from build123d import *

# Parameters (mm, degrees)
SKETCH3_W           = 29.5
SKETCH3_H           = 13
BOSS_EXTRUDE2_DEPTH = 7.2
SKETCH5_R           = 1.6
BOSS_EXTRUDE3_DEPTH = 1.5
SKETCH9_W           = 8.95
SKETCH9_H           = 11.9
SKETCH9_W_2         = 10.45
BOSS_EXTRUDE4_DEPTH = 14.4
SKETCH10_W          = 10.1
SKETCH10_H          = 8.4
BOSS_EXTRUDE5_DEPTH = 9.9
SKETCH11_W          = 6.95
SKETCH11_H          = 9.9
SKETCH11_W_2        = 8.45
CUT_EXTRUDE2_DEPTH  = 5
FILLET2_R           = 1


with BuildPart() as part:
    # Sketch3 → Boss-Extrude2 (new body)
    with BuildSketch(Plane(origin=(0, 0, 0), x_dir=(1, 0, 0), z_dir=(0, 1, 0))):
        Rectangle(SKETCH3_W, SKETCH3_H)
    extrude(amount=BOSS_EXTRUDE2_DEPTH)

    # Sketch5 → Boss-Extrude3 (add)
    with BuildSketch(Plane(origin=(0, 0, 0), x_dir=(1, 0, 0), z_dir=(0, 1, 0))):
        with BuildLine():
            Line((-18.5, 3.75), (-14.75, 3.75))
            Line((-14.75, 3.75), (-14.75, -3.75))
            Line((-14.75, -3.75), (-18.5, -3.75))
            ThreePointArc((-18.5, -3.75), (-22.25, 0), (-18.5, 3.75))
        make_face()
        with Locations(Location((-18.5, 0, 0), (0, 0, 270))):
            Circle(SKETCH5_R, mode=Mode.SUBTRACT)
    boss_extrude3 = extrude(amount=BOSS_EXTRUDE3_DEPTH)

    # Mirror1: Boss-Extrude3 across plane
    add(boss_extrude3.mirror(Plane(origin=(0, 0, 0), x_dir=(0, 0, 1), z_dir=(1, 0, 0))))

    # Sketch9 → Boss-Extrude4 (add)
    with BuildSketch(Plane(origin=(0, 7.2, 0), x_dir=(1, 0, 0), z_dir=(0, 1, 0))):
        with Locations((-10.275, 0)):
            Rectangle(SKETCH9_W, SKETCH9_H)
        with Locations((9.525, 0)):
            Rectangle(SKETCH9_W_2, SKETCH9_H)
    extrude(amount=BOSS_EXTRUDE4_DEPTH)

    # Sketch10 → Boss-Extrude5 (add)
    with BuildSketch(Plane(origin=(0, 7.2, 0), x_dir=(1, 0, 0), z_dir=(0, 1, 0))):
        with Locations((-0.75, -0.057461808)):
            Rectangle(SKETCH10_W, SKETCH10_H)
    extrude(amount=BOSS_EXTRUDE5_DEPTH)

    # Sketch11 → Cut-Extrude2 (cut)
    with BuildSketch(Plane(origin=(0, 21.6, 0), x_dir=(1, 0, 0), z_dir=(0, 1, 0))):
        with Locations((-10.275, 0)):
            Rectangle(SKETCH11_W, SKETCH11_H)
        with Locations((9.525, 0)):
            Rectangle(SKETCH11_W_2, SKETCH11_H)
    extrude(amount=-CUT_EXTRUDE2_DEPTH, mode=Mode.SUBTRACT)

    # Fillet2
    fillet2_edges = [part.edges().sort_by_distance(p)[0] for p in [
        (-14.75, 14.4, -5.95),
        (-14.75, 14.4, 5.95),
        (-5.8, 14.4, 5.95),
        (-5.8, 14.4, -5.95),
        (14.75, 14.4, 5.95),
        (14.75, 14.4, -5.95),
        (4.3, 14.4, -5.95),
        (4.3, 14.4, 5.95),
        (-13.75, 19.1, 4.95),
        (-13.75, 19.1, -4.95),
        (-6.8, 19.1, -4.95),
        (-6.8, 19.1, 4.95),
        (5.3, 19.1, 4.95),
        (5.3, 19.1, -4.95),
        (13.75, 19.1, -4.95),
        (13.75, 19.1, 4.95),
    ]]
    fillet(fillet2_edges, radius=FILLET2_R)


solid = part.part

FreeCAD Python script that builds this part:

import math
import FreeCAD as App
import Part
import Sketcher
from FreeCAD import Vector
Q = App.Units.Quantity


def edges_at(feature, points):
    """Names of the edges that pass closest to the given points."""
    edges = feature.Shape.Edges
    near = lambda p: min(range(len(edges)), key=lambda i: edges[i].distToShape(Part.Vertex(*p))[0])
    return sorted({f"Edge{near(p) + 1}" for p in points})

doc = App.newDocument("Part")
params = doc.addObject("Spreadsheet::Sheet", "Params")
for row, (alias, value) in enumerate([
    ("sketch1_height", "13 mm"),
    ("sketch1_width", "29.5 mm"),
    ("pad1_length", "7.2 mm"),
    ("sketch2_diameter", "3.2 mm"),
    ("sketch2_radius", "3.75 mm"),
    ("sketch2_width", "3.75 mm"),
    ("pad2_length", "1.5 mm"),
    ("sketch3_height", "11.9 mm"),
    ("sketch3_width", "8.95 mm"),
    ("sketch3_width2", "10.45 mm"),
    ("pad3_length", "14.4 mm"),
    ("sketch4_width", "10.1 mm"),
    ("sketch4_height", "8.4 mm"),
    ("pad4_length", "9.9 mm"),
    ("sketch5_height", "9.9 mm"),
    ("sketch5_width", "6.95 mm"),
    ("sketch5_width2", "8.45 mm"),
    ("pocket1_length", "5 mm"),
    ("fillet_radius", "1 mm"),
], start=1):
    params.set(f"A{row}", alias)
    params.set(f"B{row}", "=" + value)
    params.setAlias(f"B{row}", alias)

body = doc.addObject("PartDesign::Body", "Body")

sketch1 = body.newObject("Sketcher::SketchObject", "Sketch")
sketch1.AttachmentSupport = (doc.getObject("XZ_Plane"), [""])
sketch1.MapMode = "FlatFace"
sketch1.addGeometry([
    Part.LineSegment(Vector(-14.75, -6.5, 0), Vector(-14.75, 6.5, 0)),
    Part.LineSegment(Vector(-14.75, 6.5, 0), Vector(14.75, 6.5, 0)),
    Part.LineSegment(Vector(14.75, 6.5, 0), Vector(14.75, -6.5, 0)),
    Part.LineSegment(Vector(14.75, -6.5, 0), Vector(-14.75, -6.5, 0)),
], False)
sketch1.addConstraint([
    Sketcher.Constraint("Coincident", 0, 2, 1, 1),
    Sketcher.Constraint("Coincident", 1, 2, 2, 1),
    Sketcher.Constraint("Coincident", 2, 2, 3, 1),
    Sketcher.Constraint("Coincident", 3, 2, 0, 1),
    Sketcher.Constraint("Vertical", 0),
    Sketcher.Constraint("Horizontal", 1),
    Sketcher.Constraint("Vertical", 2),
    Sketcher.Constraint("Horizontal", 3),
    Sketcher.Constraint("Symmetric", 0, 2, 2, 2, -1, 1),
    Sketcher.Constraint("DistanceY", 0, 1, 0, 2, Q("13 mm")),
    Sketcher.Constraint("DistanceX", 1, 1, 1, 2, Q("29.5 mm")),
])
sketch1.setExpression("Constraints[9]", "Params.sketch1_height")
sketch1.setExpression("Constraints[10]", "Params.sketch1_width")
pad1 = body.newObject("PartDesign::Pad", "Pad")
pad1.Profile = sketch1
pad1.setExpression("Length", "Params.pad1_length")
pad1.Reversed = True

sketch2 = body.newObject("Sketcher::SketchObject", "Sketch001")
sketch2.AttachmentSupport = (doc.getObject("XZ_Plane"), [""])
sketch2.MapMode = "FlatFace"
sketch2.addGeometry([
    Part.LineSegment(Vector(-14.75, -3.75, 0), Vector(-18.5, -3.75, 0)),
    Part.ArcOfCircle(Part.Circle(Vector(-18.5, 0, 0), Vector(0, 0, 1), 3.75), math.radians(90), math.radians(270)),
    Part.LineSegment(Vector(-18.5, 3.75, 0), Vector(-14.75, 3.75, 0)),
    Part.LineSegment(Vector(-14.75, 3.75, 0), Vector(-14.75, -3.75, 0)),
    Part.Circle(Vector(-18.5, 0, 0), Vector(0, 0, 1), 1.6),
], False)
sketch2.addConstraint([
    Sketcher.Constraint("Tangent", 0, 2, 1, 2),
    Sketcher.Constraint("Tangent", 1, 1, 2, 1),
    Sketcher.Constraint("Coincident", 2, 2, 3, 1),
    Sketcher.Constraint("Coincident", 3, 2, 0, 1),
    Sketcher.Constraint("Horizontal", 0),
    Sketcher.Constraint("Horizontal", 2),
    Sketcher.Constraint("Vertical", 3),
    Sketcher.Constraint("Coincident", 4, 3, 1, 3),
    Sketcher.Constraint("PointOnObject", 1, 3, -1),
    Sketcher.Constraint("Diameter", 4, Q("3.2 mm")),
    Sketcher.Constraint("Radius", 1, Q("3.75 mm")),
    Sketcher.Constraint("DistanceX", 0, 2, 0, 1, Q("3.75 mm")),
    Sketcher.Constraint("DistanceX", 1, 3, -1, 1, Q("18.5 mm")),
])
sketch2.setExpression("Constraints[9]", "Params.sketch2_diameter")
sketch2.setExpression("Constraints[10]", "Params.sketch2_radius")
sketch2.setExpression("Constraints[11]", "Params.sketch2_width")
pad2 = body.newObject("PartDesign::Pad", "Pad001")
pad2.Profile = sketch2
pad2.setExpression("Length", "Params.pad2_length")
pad2.Reversed = True
doc.recompute()

mirrored = body.newObject("PartDesign::Mirrored", "Mirrored")
mirrored.Originals = [pad2]
mirrored.MirrorPlane = (doc.getObject("YZ_Plane"), [""])
body.Tip = mirrored

sketch3 = body.newObject("Sketcher::SketchObject", "Sketch002")
sketch3.AttachmentSupport = (doc.getObject("XZ_Plane"), [""])
sketch3.MapMode = "FlatFace"
sketch3.AttachmentOffset = App.Placement(Vector(0, 0, -7.2), App.Rotation())
sketch3.addGeometry([
    Part.LineSegment(Vector(-14.75, -5.95, 0), Vector(-14.75, 5.95, 0)),
    Part.LineSegment(Vector(-14.75, 5.95, 0), Vector(-5.8, 5.95, 0)),
    Part.LineSegment(Vector(-5.8, 5.95, 0), Vector(-5.8, -5.95, 0)),
    Part.LineSegment(Vector(-5.8, -5.95, 0), Vector(-14.75, -5.95, 0)),
    Part.LineSegment(Vector(4.3, -5.95, 0), Vector(4.3, 5.95, 0)),
    Part.LineSegment(Vector(4.3, 5.95, 0), Vector(14.75, 5.95, 0)),
    Part.LineSegment(Vector(14.75, 5.95, 0), Vector(14.75, -5.95, 0)),
    Part.LineSegment(Vector(14.75, -5.95, 0), Vector(4.3, -5.95, 0)),
], False)
sketch3.addConstraint([
    Sketcher.Constraint("Coincident", 0, 2, 1, 1),
    Sketcher.Constraint("Coincident", 1, 2, 2, 1),
    Sketcher.Constraint("Coincident", 2, 2, 3, 1),
    Sketcher.Constraint("Coincident", 3, 2, 0, 1),
    Sketcher.Constraint("Coincident", 4, 2, 5, 1),
    Sketcher.Constraint("Coincident", 5, 2, 6, 1),
    Sketcher.Constraint("Coincident", 6, 2, 7, 1),
    Sketcher.Constraint("Coincident", 7, 2, 4, 1),
    Sketcher.Constraint("Vertical", 0),
    Sketcher.Constraint("Horizontal", 1),
    Sketcher.Constraint("Vertical", 2),
    Sketcher.Constraint("Horizontal", 3),
    Sketcher.Constraint("Vertical", 4),
    Sketcher.Constraint("Horizontal", 5),
    Sketcher.Constraint("Vertical", 6),
    Sketcher.Constraint("Horizontal", 7),
    Sketcher.Constraint("Symmetric", 3, 2, 5, 2, -1, 1),
    Sketcher.Constraint("Horizontal", 1, 2, 4, 2),
    Sketcher.Constraint("Horizontal", 3, 2, 6, 2),
    Sketcher.Constraint("DistanceY", 0, 1, 0, 2, Q("11.9 mm")),
    Sketcher.Constraint("DistanceX", 1, 1, 1, 2, Q("8.95 mm")),
    Sketcher.Constraint("DistanceX", 5, 1, 5, 2, Q("10.45 mm")),
    Sketcher.Constraint("DistanceX", 1, 2, -1, 1, Q("5.8 mm")),
])
sketch3.setExpression("Constraints[19]", "Params.sketch3_height")
sketch3.setExpression("Constraints[20]", "Params.sketch3_width")
sketch3.setExpression("Constraints[21]", "Params.sketch3_width2")
pad3 = body.newObject("PartDesign::Pad", "Pad002")
pad3.Profile = sketch3
pad3.setExpression("Length", "Params.pad3_length")
pad3.Reversed = True

sketch4 = body.newObject("Sketcher::SketchObject", "Sketch003")
sketch4.AttachmentSupport = (doc.getObject("XZ_Plane"), [""])
sketch4.MapMode = "FlatFace"
sketch4.AttachmentOffset = App.Placement(Vector(0, 0, -7.2), App.Rotation())
sketch4.addGeometry([
    Part.LineSegment(Vector(-5.8, -4.142538, 0), Vector(-5.8, 4.257462, 0)),
    Part.LineSegment(Vector(-5.8, 4.257462, 0), Vector(4.3, 4.257462, 0)),
    Part.LineSegment(Vector(4.3, 4.257462, 0), Vector(4.3, -4.142538, 0)),
    Part.LineSegment(Vector(4.3, -4.142538, 0), Vector(-5.8, -4.142538, 0)),
], False)
sketch4.addConstraint([
    Sketcher.Constraint("Coincident", 0, 2, 1, 1),
    Sketcher.Constraint("Coincident", 1, 2, 2, 1),
    Sketcher.Constraint("Coincident", 2, 2, 3, 1),
    Sketcher.Constraint("Coincident", 3, 2, 0, 1),
    Sketcher.Constraint("Vertical", 0),
    Sketcher.Constraint("Horizontal", 1),
    Sketcher.Constraint("Vertical", 2),
    Sketcher.Constraint("Horizontal", 3),
    Sketcher.Constraint("DistanceX", 1, 1, 1, 2, Q("10.1 mm")),
    Sketcher.Constraint("DistanceY", 0, 1, 0, 2, Q("8.4 mm")),
    Sketcher.Constraint("DistanceX", 0, 2, -1, 1, Q("5.8 mm")),
    Sketcher.Constraint("DistanceY", -1, 1, 0, 2, Q("4.257462 mm")),
])
sketch4.setExpression("Constraints[8]", "Params.sketch4_width")
sketch4.setExpression("Constraints[9]", "Params.sketch4_height")
pad4 = body.newObject("PartDesign::Pad", "Pad003")
pad4.Profile = sketch4
pad4.setExpression("Length", "Params.pad4_length")
pad4.Reversed = True

sketch5 = body.newObject("Sketcher::SketchObject", "Sketch004")
sketch5.AttachmentSupport = (doc.getObject("XZ_Plane"), [""])
sketch5.MapMode = "FlatFace"
sketch5.AttachmentOffset = App.Placement(Vector(0, 0, -21.6), App.Rotation())
sketch5.addGeometry([
    Part.LineSegment(Vector(-13.75, -4.95, 0), Vector(-13.75, 4.95, 0)),
    Part.LineSegment(Vector(-13.75, 4.95, 0), Vector(-6.8, 4.95, 0)),
    Part.LineSegment(Vector(-6.8, 4.95, 0), Vector(-6.8, -4.95, 0)),
    Part.LineSegment(Vector(-6.8, -4.95, 0), Vector(-13.75, -4.95, 0)),
    Part.LineSegment(Vector(5.3, -4.95, 0), Vector(5.3, 4.95, 0)),
    Part.LineSegment(Vector(5.3, 4.95, 0), Vector(13.75, 4.95, 0)),
    Part.LineSegment(Vector(13.75, 4.95, 0), Vector(13.75, -4.95, 0)),
    Part.LineSegment(Vector(13.75, -4.95, 0), Vector(5.3, -4.95, 0)),
], False)
sketch5.addConstraint([
    Sketcher.Constraint("Coincident", 0, 2, 1, 1),
    Sketcher.Constraint("Coincident", 1, 2, 2, 1),
    Sketcher.Constraint("Coincident", 2, 2, 3, 1),
    Sketcher.Constraint("Coincident", 3, 2, 0, 1),
    Sketcher.Constraint("Coincident", 4, 2, 5, 1),
    Sketcher.Constraint("Coincident", 5, 2, 6, 1),
    Sketcher.Constraint("Coincident", 6, 2, 7, 1),
    Sketcher.Constraint("Coincident", 7, 2, 4, 1),
    Sketcher.Constraint("Vertical", 0),
    Sketcher.Constraint("Horizontal", 1),
    Sketcher.Constraint("Vertical", 2),
    Sketcher.Constraint("Horizontal", 3),
    Sketcher.Constraint("Vertical", 4),
    Sketcher.Constraint("Horizontal", 5),
    Sketcher.Constraint("Vertical", 6),
    Sketcher.Constraint("Horizontal", 7),
    Sketcher.Constraint("Symmetric", 3, 2, 5, 2, -1, 1),
    Sketcher.Constraint("Horizontal", 1, 2, 4, 2),
    Sketcher.Constraint("Horizontal", 3, 2, 6, 2),
    Sketcher.Constraint("DistanceY", 0, 1, 0, 2, Q("9.9 mm")),
    Sketcher.Constraint("DistanceX", 1, 1, 1, 2, Q("6.95 mm")),
    Sketcher.Constraint("DistanceX", 5, 1, 5, 2, Q("8.45 mm")),
    Sketcher.Constraint("DistanceX", 1, 2, -1, 1, Q("6.8 mm")),
])
sketch5.setExpression("Constraints[19]", "Params.sketch5_height")
sketch5.setExpression("Constraints[20]", "Params.sketch5_width")
sketch5.setExpression("Constraints[21]", "Params.sketch5_width2")
pocket1 = body.newObject("PartDesign::Pocket", "Pocket")
pocket1.Profile = sketch5
pocket1.setExpression("Length", "Params.pocket1_length")
pocket1.Reversed = True
doc.recompute()

fillet = body.newObject("PartDesign::Fillet", "Fillet")
fillet.Base = (pocket1, edges_at(pocket1, [
    (-14.75, 14.4, -5.95),
    (-14.75, 14.4, 5.95),
    (-5.8, 14.4, 5.95),
    (-5.8, 14.4, -5.95),
    (14.75, 14.4, 5.95),
    (14.75, 14.4, -5.95),
    (4.3, 14.4, -5.95),
    (4.3, 14.4, 5.95),
    (-13.75, 19.1, 4.95),
    (-13.75, 19.1, -4.95),
    (-6.8, 19.1, -4.95),
    (-6.8, 19.1, 4.95),
    (5.3, 19.1, 4.95),
    (5.3, 19.1, -4.95),
    (13.75, 19.1, -4.95),
    (13.75, 19.1, 4.95),
]))
fillet.setExpression("Radius", "Params.fillet_radius")

doc.recompute()
